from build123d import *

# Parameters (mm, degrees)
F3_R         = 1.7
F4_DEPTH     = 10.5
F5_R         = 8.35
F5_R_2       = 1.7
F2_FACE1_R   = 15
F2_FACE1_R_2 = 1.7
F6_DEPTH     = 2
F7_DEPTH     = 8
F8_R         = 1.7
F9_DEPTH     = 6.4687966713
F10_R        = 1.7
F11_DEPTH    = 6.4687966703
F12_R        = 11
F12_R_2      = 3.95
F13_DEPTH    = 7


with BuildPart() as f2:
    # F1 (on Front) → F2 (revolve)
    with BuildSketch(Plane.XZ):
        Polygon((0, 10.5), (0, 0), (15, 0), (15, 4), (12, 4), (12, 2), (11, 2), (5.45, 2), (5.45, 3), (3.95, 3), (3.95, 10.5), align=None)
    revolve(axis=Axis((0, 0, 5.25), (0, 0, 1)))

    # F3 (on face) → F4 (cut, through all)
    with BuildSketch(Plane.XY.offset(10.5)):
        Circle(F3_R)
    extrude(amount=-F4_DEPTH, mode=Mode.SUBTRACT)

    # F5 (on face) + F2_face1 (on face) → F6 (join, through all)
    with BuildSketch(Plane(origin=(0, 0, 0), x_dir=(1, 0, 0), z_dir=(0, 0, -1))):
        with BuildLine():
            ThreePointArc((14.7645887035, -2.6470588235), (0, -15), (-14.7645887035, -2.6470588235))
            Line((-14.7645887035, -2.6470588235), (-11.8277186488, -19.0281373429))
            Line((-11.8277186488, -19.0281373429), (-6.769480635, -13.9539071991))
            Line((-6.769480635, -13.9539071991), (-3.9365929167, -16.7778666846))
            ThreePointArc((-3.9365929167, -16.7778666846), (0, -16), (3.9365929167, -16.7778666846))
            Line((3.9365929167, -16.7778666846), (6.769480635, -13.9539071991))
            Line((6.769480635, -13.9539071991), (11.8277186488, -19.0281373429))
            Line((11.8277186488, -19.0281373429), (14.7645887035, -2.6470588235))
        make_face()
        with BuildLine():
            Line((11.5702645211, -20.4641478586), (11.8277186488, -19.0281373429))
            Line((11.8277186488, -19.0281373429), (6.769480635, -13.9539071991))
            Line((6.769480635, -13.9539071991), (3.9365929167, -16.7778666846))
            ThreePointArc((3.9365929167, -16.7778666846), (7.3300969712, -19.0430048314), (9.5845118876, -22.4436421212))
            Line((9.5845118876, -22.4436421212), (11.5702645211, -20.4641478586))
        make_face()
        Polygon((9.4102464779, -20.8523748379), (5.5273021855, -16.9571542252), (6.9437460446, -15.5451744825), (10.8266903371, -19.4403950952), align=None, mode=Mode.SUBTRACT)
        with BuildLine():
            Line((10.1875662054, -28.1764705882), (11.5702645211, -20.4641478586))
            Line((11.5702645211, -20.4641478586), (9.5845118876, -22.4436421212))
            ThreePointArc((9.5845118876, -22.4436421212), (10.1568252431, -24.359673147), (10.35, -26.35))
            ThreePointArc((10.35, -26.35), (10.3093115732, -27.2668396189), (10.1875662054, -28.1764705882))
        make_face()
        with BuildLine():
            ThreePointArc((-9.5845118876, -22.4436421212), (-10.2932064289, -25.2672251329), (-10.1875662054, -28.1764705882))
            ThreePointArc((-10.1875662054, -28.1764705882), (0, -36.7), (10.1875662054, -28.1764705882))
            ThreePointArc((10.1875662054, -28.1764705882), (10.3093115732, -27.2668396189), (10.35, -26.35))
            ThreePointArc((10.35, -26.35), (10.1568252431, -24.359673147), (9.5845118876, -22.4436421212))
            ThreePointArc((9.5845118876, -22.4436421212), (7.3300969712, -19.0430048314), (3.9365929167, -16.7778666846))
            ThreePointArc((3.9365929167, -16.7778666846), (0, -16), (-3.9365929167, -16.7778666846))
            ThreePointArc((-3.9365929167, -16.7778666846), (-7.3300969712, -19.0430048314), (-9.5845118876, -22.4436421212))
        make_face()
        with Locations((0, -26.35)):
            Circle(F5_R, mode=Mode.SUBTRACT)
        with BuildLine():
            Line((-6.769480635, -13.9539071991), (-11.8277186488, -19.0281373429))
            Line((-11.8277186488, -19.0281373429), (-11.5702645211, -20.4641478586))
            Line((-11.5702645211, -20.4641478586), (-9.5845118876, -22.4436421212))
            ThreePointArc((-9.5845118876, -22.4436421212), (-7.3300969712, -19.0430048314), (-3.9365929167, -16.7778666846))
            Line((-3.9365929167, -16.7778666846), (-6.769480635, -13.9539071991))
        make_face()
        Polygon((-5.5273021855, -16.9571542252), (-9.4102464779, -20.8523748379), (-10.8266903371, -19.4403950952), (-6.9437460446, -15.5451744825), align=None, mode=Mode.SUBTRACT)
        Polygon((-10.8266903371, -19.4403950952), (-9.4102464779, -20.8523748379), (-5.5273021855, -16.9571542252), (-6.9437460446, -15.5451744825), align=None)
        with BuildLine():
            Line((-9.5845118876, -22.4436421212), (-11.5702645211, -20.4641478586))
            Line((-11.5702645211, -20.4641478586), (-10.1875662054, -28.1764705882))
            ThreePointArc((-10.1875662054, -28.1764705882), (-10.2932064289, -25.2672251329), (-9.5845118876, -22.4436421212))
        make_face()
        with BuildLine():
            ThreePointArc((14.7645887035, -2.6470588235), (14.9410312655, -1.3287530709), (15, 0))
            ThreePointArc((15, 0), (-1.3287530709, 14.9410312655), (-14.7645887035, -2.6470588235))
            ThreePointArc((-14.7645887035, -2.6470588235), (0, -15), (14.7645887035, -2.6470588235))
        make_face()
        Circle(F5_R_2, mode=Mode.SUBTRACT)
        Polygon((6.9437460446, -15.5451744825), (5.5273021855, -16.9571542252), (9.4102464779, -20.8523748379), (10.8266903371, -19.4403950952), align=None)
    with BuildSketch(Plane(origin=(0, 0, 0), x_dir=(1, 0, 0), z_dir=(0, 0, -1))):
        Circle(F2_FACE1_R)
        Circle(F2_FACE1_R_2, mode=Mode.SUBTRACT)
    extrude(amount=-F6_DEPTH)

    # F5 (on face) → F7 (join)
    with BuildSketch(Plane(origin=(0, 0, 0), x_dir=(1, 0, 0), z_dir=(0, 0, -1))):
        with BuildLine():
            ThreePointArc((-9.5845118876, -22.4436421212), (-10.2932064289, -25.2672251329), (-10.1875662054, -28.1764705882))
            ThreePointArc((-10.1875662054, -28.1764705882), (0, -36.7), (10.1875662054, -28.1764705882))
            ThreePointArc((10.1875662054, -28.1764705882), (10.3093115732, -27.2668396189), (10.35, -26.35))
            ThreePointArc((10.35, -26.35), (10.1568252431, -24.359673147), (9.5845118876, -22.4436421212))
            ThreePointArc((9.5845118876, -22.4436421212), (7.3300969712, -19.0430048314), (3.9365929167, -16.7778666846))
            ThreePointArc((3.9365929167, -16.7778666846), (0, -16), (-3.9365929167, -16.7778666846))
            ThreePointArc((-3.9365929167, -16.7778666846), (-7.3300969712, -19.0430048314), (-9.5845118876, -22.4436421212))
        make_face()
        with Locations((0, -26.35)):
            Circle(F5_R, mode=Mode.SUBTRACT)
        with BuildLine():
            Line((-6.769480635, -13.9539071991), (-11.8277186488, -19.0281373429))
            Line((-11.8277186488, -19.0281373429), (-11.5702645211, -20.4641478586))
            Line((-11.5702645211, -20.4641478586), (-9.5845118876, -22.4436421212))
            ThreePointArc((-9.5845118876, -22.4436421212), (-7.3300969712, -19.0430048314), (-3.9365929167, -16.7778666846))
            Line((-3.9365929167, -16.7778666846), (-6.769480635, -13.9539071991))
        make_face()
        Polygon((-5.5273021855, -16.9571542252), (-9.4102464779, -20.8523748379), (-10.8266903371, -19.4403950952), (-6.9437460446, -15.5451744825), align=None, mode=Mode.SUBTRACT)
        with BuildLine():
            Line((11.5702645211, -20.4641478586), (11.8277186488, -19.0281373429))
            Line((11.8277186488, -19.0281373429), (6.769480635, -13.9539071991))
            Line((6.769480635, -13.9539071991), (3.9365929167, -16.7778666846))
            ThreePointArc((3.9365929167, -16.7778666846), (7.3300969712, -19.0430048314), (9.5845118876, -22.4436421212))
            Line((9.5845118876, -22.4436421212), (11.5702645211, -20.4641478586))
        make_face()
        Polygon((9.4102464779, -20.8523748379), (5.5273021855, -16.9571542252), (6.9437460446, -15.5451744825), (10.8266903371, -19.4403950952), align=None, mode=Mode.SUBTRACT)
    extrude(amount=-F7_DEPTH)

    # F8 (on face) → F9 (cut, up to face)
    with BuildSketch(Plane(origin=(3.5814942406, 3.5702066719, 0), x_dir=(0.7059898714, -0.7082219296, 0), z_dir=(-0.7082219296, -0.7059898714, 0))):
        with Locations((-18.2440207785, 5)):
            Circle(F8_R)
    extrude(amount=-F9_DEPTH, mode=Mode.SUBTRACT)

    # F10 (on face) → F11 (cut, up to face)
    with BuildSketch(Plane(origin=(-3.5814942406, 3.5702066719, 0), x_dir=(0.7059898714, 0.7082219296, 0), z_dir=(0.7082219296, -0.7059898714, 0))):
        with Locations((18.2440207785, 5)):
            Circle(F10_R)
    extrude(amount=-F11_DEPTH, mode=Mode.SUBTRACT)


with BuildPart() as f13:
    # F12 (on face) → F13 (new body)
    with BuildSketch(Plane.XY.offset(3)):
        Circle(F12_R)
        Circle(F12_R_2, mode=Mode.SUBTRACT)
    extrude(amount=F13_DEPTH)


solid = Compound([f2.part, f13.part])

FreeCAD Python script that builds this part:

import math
import FreeCAD as App
import Part
import Sketcher

V = App.Vector


def add_polygon(sketch, points):
    """Adds a closed chain of lines whose ends are joined by coincident constraints."""
    first, n = sketch.GeometryCount, len(points)
    for a, b in zip(points, points[1:] + points[:1]):
        sketch.addGeometry(Part.LineSegment(App.Vector(*a, 0), App.Vector(*b, 0)), False)
    for i in range(n):
        sketch.addConstraint(Sketcher.Constraint("Coincident", first + i, 2, first + (i + 1) % n, 1))

doc = App.newDocument("Part")
body = doc.addObject("PartDesign::Body", "Body")

# Sketch on XZ plane
sketch1 = body.newObject("Sketcher::SketchObject", "Sketch")
sketch1.AttachmentSupport = (doc.getObject("XZ_Plane"), [""])
sketch1.MapMode = "FlatFace"
add_polygon(sketch1, [(0, 10.5), (0, 0), (15, 0), (15, 4), (12, 4), (12, 2), (5.5, 2), (5.5, 3), (4, 3), (4, 10.5)])  # lines 0-9
sketch1.addConstraint(Sketcher.Constraint("Vertical", 0))
sketch1.addConstraint(Sketcher.Constraint("Horizontal", 1))
sketch1.addConstraint(Sketcher.Constraint("Vertical", 2))
sketch1.addConstraint(Sketcher.Constraint("Horizontal", 3))
sketch1.addConstraint(Sketcher.Constraint("Vertical", 4))
sketch1.addConstraint(Sketcher.Constraint("Horizontal", 5))
sketch1.addConstraint(Sketcher.Constraint("Vertical", 6))
sketch1.addConstraint(Sketcher.Constraint("Horizontal", 7))
sketch1.addConstraint(Sketcher.Constraint("Vertical", 8))
sketch1.addConstraint(Sketcher.Constraint("Horizontal", 9))
sketch1.addConstraint(Sketcher.Constraint("Coincident", 0, 2, -1, 1))
sketch1.addConstraint(Sketcher.Constraint("DistanceX", 1, 1, 1, 2, 15.0))
sketch1.addConstraint(Sketcher.Constraint("DistanceX", 3, 2, 3, 1, 3.0))
sketch1.addConstraint(Sketcher.Constraint("DistanceY", 2, 1, 2, 2, 4.0))
sketch1.addConstraint(Sketcher.Constraint("DistanceY", 4, 2, 4, 1, 2.0))
sketch1.addConstraint(Sketcher.Constraint("DistanceY", 6, 1, 6, 2, 1.0))
sketch1.addConstraint(Sketcher.Constraint("DistanceX", 7, 2, 7, 1, 1.5))
sketch1.addConstraint(Sketcher.Constraint("DistanceY", 0, 2, 0, 1, 10.5))
sketch1.addConstraint(Sketcher.Constraint("DistanceX", 5, 2, 5, 1, 6.55))
revolution = body.newObject("PartDesign::Revolution", "Revolution")
revolution.Profile = sketch1
revolution.ReferenceAxis = (sketch1, ["V_Axis"])
revolution.Angle = 360

# Sketch on XY plane
sketch2 = body.newObject("Sketcher::SketchObject", "Sketch001")
sketch2.AttachmentSupport = (doc.getObject("XY_Plane"), [""])
sketch2.MapMode = "FlatFace"
sketch2.AttachmentOffset = App.Placement(V(0, 0, 10.5), App.Rotation())
sketch2.addGeometry(Part.Circle(V(0, 0, 0), V(0, 0, 1), 1.7), False)
sketch2.addConstraint(Sketcher.Constraint("Coincident", 0, 3, -1, 1))
sketch2.addConstraint(Sketcher.Constraint("Diameter", 0, 3.4))
pocket1 = body.newObject("PartDesign::Pocket", "Pocket")
pocket1.Profile = sketch2
pocket1.Type = "ThroughAll"

# Sketch on XY plane
sketch3 = body.newObject("Sketcher::SketchObject", "Sketch002")
sketch3.AttachmentSupport = (doc.getObject("XY_Plane"), [""])
sketch3.MapMode = "FlatFace"
sketch3.addGeometry(Part.ArcOfCircle(Part.Circle(V(0, 0, 0), V(0, 0, 1), 15), math.radians(170), math.radians(360)), False)
sketch3.addGeometry(Part.LineSegment(V(-14.8, 2.6, 0), V(-11.8, 19, 0)), False)
sketch3.addGeometry(Part.LineSegment(V(-11.8, 19, 0), V(-11.6, 20.5, 0)), False)
sketch3.addGeometry(Part.LineSegment(V(-11.6, 20.5, 0), V(-10.2, 28.2, 0)), False)
sketch3.addGeometry(Part.ArcOfCircle(Part.Circle(V(0, 26.4, 0), V(0, 0, 1), 10.3), math.radians(10), math.radians(170)), False)
sketch3.addGeometry(Part.LineSegment(V(10.2, 28.2, 0), V(11.6, 20.5, 0)), False)
sketch3.addGeometry(Part.LineSegment(V(11.6, 20.5, 0), V(11.8, 19, 0)), False)
sketch3.addGeometry(Part.LineSegment(V(11.8, 19, 0), V(14.8, 2.6, 0)), False)
sketch3.addGeometry(Part.ArcOfCircle(Part.Circle(V(0, 0, 0), V(0, 0, 1), 15), math.radians(0), math.radians(10.16)), False)
sketch3.addGeometry(Part.Circle(V(0, 0, 0), V(0, 0, 1), 1.7), False)
sketch3.addGeometry(Part.Circle(V(0, 26.4, 0), V(0, 0, 1), 8.3), False)
sketch3.addConstraint(Sketcher.Constraint("Tangent", 0, 1, 1, 1))
sketch3.addConstraint(Sketcher.Constraint("Coincident", 1, 2, 2, 1))
sketch3.addConstraint(Sketcher.Constraint("Coincident", 2, 2, 3, 1))
sketch3.addConstraint(Sketcher.Constraint("Tangent", 3, 2, 4, 2))
sketch3.addConstraint(Sketcher.Constraint("Tangent", 4, 1, 5, 1))
sketch3.addConstraint(Sketcher.Constraint("Coincident", 5, 2, 6, 1))
sketch3.addConstraint(Sketcher.Constraint("Coincident", 6, 2, 7, 1))
sketch3.addConstraint(Sketcher.Constraint("Tangent", 7, 2, 8, 2))
sketch3.addConstraint(Sketcher.Constraint("Tangent", 8, 1, 0, 2))
sketch3.addConstraint(Sketcher.Constraint("Coincident", 0, 3, -1, 1))
sketch3.addConstraint(Sketcher.Constraint("Coincident", 9, 3, -1, 1))
sketch3.addConstraint(Sketcher.Constraint("Coincident", 10, 3, 4, 3))
sketch3.addConstraint(Sketcher.Constraint("Equal", 0, 8))
sketch3.addConstraint(Sketcher.Constraint("Symmetric", 3, 2, 4, 1, -2))
sketch3.addConstraint(Sketcher.Constraint("Symmetric", 1, 2, 6, 2, -2))
sketch3.addConstraint(Sketcher.Constraint("PointOnObject", 8, 1, -1))
sketch3.addConstraint(Sketcher.Constraint("Parallel", 1, 2))
sketch3.addConstraint(Sketcher.Constraint("Parallel", 2, 3))
sketch3.addConstraint(Sketcher.Constraint("Horizontal", 2, 2, 5, 2))
sketch3.addConstraint(Sketcher.Constraint("Radius", 0, 15.0))
sketch3.addConstraint(Sketcher.Constraint("Diameter", 9, 3.4))
sketch3.addConstraint(Sketcher.Constraint("Diameter", 10, 16.7))
sketch3.addConstraint(Sketcher.Constraint("Radius", 4, 10.35))
sketch3.addConstraint(Sketcher.Constraint("DistanceY", -1, 1, 4, 3, 26.35))
sketch3.addConstraint(Sketcher.Constraint("DistanceX", 2, 2, 3, 2, 1.382698))
sketch3.addConstraint(Sketcher.Constraint("DistanceX", 1, 2, -1, 1, 11.827719))
pad1 = body.newObject("PartDesign::Pad", "Pad")
pad1.Profile = sketch3
pad1.Type = "UpToLast"

# Sketch on XY plane
sketch4 = body.newObject("Sketcher::SketchObject", "Sketch003")
sketch4.AttachmentSupport = (doc.getObject("XY_Plane"), [""])
sketch4.MapMode = "FlatFace"
sketch4.addGeometry(Part.ArcOfCircle(Part.Circle(V(0, 26.4, 0), V(0, 0, 1), 10.3), math.radians(170), math.radians(202)), False)  # 0
sketch4.addGeometry(Part.ArcOfCircle(Part.Circle(V(0, 26.4, 0), V(0, 0, 1), 10.3), math.radians(10), math.radians(170)), False)  # 1
sketch4.addGeometry(Part.ArcOfCircle(Part.Circle(V(0, 26.4, 0), V(0, 0, 1), 10.3), math.radians(0), math.radians(10.16)), False)  # 2
sketch4.addGeometry(Part.ArcOfCircle(Part.Circle(V(0, 26.4, 0), V(0, 0, 1), 10.3), math.radians(-22), math.radians(0)), False)  # 3
sketch4.addGeometry(Part.LineSegment(V(9.6, 22.4, 0), V(11.6, 20.5, 0)), False)  # 4
sketch4.addGeometry(Part.LineSegment(V(11.6, 20.5, 0), V(11.8, 19, 0)), False)  # 5
sketch4.addGeometry(Part.LineSegment(V(11.8, 19, 0), V(6.8, 14, 0)), False)  # 6
sketch4.addGeometry(Part.LineSegment(V(6.8, 14, 0), V(3.9, 16.8, 0)), False)  # 7
sketch4.addGeometry(Part.ArcOfCircle(Part.Circle(V(0, 26.4, 0), V(0, 0, 1), 10.3), math.radians(-112), math.radians(-68)), False)  # 8
sketch4.addGeometry(Part.LineSegment(V(-3.9, 16.8, 0), V(-6.8, 14, 0)), False)  # 9
sketch4.addGeometry(Part.LineSegment(V(-6.8, 14, 0), V(-11.8, 19, 0)), False)  # 10
sketch4.addGeometry(Part.LineSegment(V(-11.8, 19, 0), V(-11.6, 20.5, 0)), False)  # 11
sketch4.addGeometry(Part.LineSegment(V(-11.6, 20.5, 0), V(-9.6, 22.4, 0)), False)  # 12
sketch4.addGeometry(Part.Circle(V(0, 26.4, 0), V(0, 0, 1), 8.3), False)  # 13
add_polygon(sketch4, [(-6.9, 15.5), (-5.5, 17), (-9.4, 20.9), (-10.8, 19.4)])  # lines 14-17
add_polygon(sketch4, [(10.8, 19.4), (9.4, 20.9), (5.5, 17), (6.9, 15.5)])  # lines 18-21
sketch4.addConstraint(Sketcher.Constraint("Tangent", 0, 1, 1, 2))
sketch4.addConstraint(Sketcher.Constraint("Tangent", 1, 1, 2, 2))
sketch4.addConstraint(Sketcher.Constraint("Tangent", 2, 1, 3, 2))
sketch4.addConstraint(Sketcher.Constraint("Coincident", 3, 1, 4, 1))
sketch4.addConstraint(Sketcher.Constraint("Coincident", 4, 2, 5, 1))
sketch4.addConstraint(Sketcher.Constraint("Coincident", 5, 2, 6, 1))
sketch4.addConstraint(Sketcher.Constraint("Coincident", 6, 2, 7, 1))
sketch4.addConstraint(Sketcher.Constraint("Coincident", 7, 2, 8, 2))
sketch4.addConstraint(Sketcher.Constraint("Coincident", 8, 1, 9, 1))
sketch4.addConstraint(Sketcher.Constraint("Coincident", 9, 2, 10, 1))
sketch4.addConstraint(Sketcher.Constraint("Coincident", 10, 2, 11, 1))
sketch4.addConstraint(Sketcher.Constraint("Coincident", 11, 2, 12, 1))
sketch4.addConstraint(Sketcher.Constraint("Coincident", 12, 2, 0, 2))
sketch4.addConstraint(Sketcher.Constraint("Coincident", 2, 3, 0, 3))
sketch4.addConstraint(Sketcher.Constraint("Coincident", 8, 3, 0, 3))
sketch4.addConstraint(Sketcher.Constraint("Coincident", 13, 3, 0, 3))
sketch4.addConstraint(Sketcher.Constraint("Equal", 2, 3))
sketch4.addConstraint(Sketcher.Constraint("Equal", 3, 8))
sketch4.addConstraint(Sketcher.Constraint("Symmetric", 0, 1, 1, 1, -2))
sketch4.addConstraint(Sketcher.Constraint("Symmetric", 6, 2, 9, 2, -2))
sketch4.addConstraint(Sketcher.Constraint("Symmetric", 5, 2, 10, 2, -2))
sketch4.addConstraint(Sketcher.Constraint("Symmetric", 4, 2, 11, 2, -2))
sketch4.addConstraint(Sketcher.Constraint("Symmetric", 15, 2, 18, 2, -2))
sketch4.addConstraint(Sketcher.Constraint("Symmetric", 14, 2, 19, 2, -2))
sketch4.addConstraint(Sketcher.Constraint("Symmetric", 17, 2, 20, 2, -2))
sketch4.addConstraint(Sketcher.Constraint("Symmetric", 16, 2, 21, 2, -2))
sketch4.addConstraint(Sketcher.Constraint("Perpendicular", 4, 6))
sketch4.addConstraint(Sketcher.Constraint("Perpendicular", 6, 7))
sketch4.addConstraint(Sketcher.Constraint("Perpendicular", 9, 10))
sketch4.addConstraint(Sketcher.Constraint("Perpendicular", 10, 12))
sketch4.addConstraint(Sketcher.Constraint("Parallel", 12, 14))
sketch4.addConstraint(Sketcher.Constraint("Perpendicular", 14, 15))
sketch4.addConstraint(Sketcher.Constraint("Perpendicular", 15, 16))
sketch4.addConstraint(Sketcher.Constraint("Perpendicular", 16, 17))
sketch4.addConstraint(Sketcher.Constraint("Horizontal", 13, 3, 2, 1))
sketch4.addConstraint(Sketcher.Constraint("Diameter", 13, 16.7))
sketch4.addConstraint(Sketcher.Constraint("Radius", 0, 10.35))
sketch4.addConstraint(Sketcher.Constraint("Distance", 7, 4.0))
sketch4.addConstraint(Sketcher.Constraint("Distance", 14, 2.0))
sketch4.addConstraint(Sketcher.Constraint("Distance", 15, 5.5))
sketch4.addConstraint(Sketcher.Constraint("DistanceY", -1, 1, 0, 3, 26.35))
sketch4.addConstraint(Sketcher.Constraint("DistanceX", 1, 1, 4, 2, 1.382698))
sketch4.addConstraint(Sketcher.Constraint("DistanceX", 15, 2, 17, 2, 2.4665))
sketch4.addConstraint(Sketcher.Constraint("DistanceY", -1, 1, 0, 1, 28.176471))
sketch4.addConstraint(Sketcher.Constraint("DistanceX", -1, 1, 3, 1, 9.584512))
sketch4.addConstraint(Sketcher.Constraint("DistanceX", -1, 1, 5, 2, 11.827719))
sketch4.addConstraint(Sketcher.Constraint("DistanceX", -1, 1, 6, 2, 6.769481))
sketch4.addConstraint(Sketcher.Constraint("DistanceX", 16, 2, -1, 1, 10.82669))
sketch4.addConstraint(Sketcher.Constraint("DistanceY", 8, 1, 15, 2, 4.074508))
pad2 = body.newObject("PartDesign::Pad", "Pad001")
pad2.Profile = sketch4
pad2.Length = 8

# Sketch on an angled plane
sketch5 = body.newObject("Sketcher::SketchObject", "Sketch004")
sketch5.Placement = App.Placement(V(3.581494, 3.570207, 0), App.Rotation(V(0.705989871, -0.70822193, 0), V(0, 0, 1), V(-0.70822193, -0.705989871, 0), "ZXY"))
sketch5.addGeometry(Part.Circle(V(-18.2, 5, 0), V(0, 0, 1), 1.7), False)
sketch5.addConstraint(Sketcher.Constraint("Diameter", 0, 3.4))
sketch5.addConstraint(Sketcher.Constraint("DistanceY", -1, 1, 0, 3, 5.0))
sketch5.addConstraint(Sketcher.Constraint("DistanceX", 0, 3, -1, 1, 18.244021))
pocket2 = body.newObject("PartDesign::Pocket", "Pocket001")
pocket2.Profile = sketch5
pocket2.Length = 6.468797

# Sketch on an angled plane
sketch6 = body.newObject("Sketcher::SketchObject", "Sketch005")
sketch6.Placement = App.Placement(V(-3.581494, 3.570207, 0), App.Rotation(V(0.705989871, 0.70822193, 0), V(0, 0, 1), V(0.70822193, -0.705989871, 0), "ZXY"))
sketch6.addGeometry(Part.Circle(V(18.2, 5, 0), V(0, 0, 1), 1.7), False)
sketch6.addConstraint(Sketcher.Constraint("Diameter", 0, 3.4))
sketch6.addConstraint(Sketcher.Constraint("DistanceY", -1, 1, 0, 3, 5.0))
sketch6.addConstraint(Sketcher.Constraint("DistanceX", -1, 1, 0, 3, 18.244021))
pocket3 = body.newObject("PartDesign::Pocket", "Pocket002")
pocket3.Profile = sketch6
pocket3.Length = 6.468797
body2 = doc.addObject("PartDesign::Body", "Body001")

# Sketch on XY plane
sketch7 = body2.newObject("Sketcher::SketchObject", "Sketch006")
sketch7.AttachmentSupport = (doc.getObject("XY_Plane001"), [""])
sketch7.MapMode = "FlatFace"
sketch7.AttachmentOffset = App.Placement(V(0, 0, 3), App.Rotation())
sketch7.addGeometry(Part.Circle(V(0, 0, 0), V(0, 0, 1), 11), False)
sketch7.addGeometry(Part.Circle(V(0, 0, 0), V(0, 0, 1), 4), False)
sketch7.addConstraint(Sketcher.Constraint("Coincident", 0, 3, -1, 1))
sketch7.addConstraint(Sketcher.Constraint("Coincident", 1, 3, -1, 1))
sketch7.addConstraint(Sketcher.Constraint("Diameter", 0, 22.0))
sketch7.addConstraint(Sketcher.Constraint("Diameter", 1, 7.9))
pad3 = body2.newObject("PartDesign::Pad", "Pad002")
pad3.Profile = sketch7
pad3.Length = 7

doc.recompute()
